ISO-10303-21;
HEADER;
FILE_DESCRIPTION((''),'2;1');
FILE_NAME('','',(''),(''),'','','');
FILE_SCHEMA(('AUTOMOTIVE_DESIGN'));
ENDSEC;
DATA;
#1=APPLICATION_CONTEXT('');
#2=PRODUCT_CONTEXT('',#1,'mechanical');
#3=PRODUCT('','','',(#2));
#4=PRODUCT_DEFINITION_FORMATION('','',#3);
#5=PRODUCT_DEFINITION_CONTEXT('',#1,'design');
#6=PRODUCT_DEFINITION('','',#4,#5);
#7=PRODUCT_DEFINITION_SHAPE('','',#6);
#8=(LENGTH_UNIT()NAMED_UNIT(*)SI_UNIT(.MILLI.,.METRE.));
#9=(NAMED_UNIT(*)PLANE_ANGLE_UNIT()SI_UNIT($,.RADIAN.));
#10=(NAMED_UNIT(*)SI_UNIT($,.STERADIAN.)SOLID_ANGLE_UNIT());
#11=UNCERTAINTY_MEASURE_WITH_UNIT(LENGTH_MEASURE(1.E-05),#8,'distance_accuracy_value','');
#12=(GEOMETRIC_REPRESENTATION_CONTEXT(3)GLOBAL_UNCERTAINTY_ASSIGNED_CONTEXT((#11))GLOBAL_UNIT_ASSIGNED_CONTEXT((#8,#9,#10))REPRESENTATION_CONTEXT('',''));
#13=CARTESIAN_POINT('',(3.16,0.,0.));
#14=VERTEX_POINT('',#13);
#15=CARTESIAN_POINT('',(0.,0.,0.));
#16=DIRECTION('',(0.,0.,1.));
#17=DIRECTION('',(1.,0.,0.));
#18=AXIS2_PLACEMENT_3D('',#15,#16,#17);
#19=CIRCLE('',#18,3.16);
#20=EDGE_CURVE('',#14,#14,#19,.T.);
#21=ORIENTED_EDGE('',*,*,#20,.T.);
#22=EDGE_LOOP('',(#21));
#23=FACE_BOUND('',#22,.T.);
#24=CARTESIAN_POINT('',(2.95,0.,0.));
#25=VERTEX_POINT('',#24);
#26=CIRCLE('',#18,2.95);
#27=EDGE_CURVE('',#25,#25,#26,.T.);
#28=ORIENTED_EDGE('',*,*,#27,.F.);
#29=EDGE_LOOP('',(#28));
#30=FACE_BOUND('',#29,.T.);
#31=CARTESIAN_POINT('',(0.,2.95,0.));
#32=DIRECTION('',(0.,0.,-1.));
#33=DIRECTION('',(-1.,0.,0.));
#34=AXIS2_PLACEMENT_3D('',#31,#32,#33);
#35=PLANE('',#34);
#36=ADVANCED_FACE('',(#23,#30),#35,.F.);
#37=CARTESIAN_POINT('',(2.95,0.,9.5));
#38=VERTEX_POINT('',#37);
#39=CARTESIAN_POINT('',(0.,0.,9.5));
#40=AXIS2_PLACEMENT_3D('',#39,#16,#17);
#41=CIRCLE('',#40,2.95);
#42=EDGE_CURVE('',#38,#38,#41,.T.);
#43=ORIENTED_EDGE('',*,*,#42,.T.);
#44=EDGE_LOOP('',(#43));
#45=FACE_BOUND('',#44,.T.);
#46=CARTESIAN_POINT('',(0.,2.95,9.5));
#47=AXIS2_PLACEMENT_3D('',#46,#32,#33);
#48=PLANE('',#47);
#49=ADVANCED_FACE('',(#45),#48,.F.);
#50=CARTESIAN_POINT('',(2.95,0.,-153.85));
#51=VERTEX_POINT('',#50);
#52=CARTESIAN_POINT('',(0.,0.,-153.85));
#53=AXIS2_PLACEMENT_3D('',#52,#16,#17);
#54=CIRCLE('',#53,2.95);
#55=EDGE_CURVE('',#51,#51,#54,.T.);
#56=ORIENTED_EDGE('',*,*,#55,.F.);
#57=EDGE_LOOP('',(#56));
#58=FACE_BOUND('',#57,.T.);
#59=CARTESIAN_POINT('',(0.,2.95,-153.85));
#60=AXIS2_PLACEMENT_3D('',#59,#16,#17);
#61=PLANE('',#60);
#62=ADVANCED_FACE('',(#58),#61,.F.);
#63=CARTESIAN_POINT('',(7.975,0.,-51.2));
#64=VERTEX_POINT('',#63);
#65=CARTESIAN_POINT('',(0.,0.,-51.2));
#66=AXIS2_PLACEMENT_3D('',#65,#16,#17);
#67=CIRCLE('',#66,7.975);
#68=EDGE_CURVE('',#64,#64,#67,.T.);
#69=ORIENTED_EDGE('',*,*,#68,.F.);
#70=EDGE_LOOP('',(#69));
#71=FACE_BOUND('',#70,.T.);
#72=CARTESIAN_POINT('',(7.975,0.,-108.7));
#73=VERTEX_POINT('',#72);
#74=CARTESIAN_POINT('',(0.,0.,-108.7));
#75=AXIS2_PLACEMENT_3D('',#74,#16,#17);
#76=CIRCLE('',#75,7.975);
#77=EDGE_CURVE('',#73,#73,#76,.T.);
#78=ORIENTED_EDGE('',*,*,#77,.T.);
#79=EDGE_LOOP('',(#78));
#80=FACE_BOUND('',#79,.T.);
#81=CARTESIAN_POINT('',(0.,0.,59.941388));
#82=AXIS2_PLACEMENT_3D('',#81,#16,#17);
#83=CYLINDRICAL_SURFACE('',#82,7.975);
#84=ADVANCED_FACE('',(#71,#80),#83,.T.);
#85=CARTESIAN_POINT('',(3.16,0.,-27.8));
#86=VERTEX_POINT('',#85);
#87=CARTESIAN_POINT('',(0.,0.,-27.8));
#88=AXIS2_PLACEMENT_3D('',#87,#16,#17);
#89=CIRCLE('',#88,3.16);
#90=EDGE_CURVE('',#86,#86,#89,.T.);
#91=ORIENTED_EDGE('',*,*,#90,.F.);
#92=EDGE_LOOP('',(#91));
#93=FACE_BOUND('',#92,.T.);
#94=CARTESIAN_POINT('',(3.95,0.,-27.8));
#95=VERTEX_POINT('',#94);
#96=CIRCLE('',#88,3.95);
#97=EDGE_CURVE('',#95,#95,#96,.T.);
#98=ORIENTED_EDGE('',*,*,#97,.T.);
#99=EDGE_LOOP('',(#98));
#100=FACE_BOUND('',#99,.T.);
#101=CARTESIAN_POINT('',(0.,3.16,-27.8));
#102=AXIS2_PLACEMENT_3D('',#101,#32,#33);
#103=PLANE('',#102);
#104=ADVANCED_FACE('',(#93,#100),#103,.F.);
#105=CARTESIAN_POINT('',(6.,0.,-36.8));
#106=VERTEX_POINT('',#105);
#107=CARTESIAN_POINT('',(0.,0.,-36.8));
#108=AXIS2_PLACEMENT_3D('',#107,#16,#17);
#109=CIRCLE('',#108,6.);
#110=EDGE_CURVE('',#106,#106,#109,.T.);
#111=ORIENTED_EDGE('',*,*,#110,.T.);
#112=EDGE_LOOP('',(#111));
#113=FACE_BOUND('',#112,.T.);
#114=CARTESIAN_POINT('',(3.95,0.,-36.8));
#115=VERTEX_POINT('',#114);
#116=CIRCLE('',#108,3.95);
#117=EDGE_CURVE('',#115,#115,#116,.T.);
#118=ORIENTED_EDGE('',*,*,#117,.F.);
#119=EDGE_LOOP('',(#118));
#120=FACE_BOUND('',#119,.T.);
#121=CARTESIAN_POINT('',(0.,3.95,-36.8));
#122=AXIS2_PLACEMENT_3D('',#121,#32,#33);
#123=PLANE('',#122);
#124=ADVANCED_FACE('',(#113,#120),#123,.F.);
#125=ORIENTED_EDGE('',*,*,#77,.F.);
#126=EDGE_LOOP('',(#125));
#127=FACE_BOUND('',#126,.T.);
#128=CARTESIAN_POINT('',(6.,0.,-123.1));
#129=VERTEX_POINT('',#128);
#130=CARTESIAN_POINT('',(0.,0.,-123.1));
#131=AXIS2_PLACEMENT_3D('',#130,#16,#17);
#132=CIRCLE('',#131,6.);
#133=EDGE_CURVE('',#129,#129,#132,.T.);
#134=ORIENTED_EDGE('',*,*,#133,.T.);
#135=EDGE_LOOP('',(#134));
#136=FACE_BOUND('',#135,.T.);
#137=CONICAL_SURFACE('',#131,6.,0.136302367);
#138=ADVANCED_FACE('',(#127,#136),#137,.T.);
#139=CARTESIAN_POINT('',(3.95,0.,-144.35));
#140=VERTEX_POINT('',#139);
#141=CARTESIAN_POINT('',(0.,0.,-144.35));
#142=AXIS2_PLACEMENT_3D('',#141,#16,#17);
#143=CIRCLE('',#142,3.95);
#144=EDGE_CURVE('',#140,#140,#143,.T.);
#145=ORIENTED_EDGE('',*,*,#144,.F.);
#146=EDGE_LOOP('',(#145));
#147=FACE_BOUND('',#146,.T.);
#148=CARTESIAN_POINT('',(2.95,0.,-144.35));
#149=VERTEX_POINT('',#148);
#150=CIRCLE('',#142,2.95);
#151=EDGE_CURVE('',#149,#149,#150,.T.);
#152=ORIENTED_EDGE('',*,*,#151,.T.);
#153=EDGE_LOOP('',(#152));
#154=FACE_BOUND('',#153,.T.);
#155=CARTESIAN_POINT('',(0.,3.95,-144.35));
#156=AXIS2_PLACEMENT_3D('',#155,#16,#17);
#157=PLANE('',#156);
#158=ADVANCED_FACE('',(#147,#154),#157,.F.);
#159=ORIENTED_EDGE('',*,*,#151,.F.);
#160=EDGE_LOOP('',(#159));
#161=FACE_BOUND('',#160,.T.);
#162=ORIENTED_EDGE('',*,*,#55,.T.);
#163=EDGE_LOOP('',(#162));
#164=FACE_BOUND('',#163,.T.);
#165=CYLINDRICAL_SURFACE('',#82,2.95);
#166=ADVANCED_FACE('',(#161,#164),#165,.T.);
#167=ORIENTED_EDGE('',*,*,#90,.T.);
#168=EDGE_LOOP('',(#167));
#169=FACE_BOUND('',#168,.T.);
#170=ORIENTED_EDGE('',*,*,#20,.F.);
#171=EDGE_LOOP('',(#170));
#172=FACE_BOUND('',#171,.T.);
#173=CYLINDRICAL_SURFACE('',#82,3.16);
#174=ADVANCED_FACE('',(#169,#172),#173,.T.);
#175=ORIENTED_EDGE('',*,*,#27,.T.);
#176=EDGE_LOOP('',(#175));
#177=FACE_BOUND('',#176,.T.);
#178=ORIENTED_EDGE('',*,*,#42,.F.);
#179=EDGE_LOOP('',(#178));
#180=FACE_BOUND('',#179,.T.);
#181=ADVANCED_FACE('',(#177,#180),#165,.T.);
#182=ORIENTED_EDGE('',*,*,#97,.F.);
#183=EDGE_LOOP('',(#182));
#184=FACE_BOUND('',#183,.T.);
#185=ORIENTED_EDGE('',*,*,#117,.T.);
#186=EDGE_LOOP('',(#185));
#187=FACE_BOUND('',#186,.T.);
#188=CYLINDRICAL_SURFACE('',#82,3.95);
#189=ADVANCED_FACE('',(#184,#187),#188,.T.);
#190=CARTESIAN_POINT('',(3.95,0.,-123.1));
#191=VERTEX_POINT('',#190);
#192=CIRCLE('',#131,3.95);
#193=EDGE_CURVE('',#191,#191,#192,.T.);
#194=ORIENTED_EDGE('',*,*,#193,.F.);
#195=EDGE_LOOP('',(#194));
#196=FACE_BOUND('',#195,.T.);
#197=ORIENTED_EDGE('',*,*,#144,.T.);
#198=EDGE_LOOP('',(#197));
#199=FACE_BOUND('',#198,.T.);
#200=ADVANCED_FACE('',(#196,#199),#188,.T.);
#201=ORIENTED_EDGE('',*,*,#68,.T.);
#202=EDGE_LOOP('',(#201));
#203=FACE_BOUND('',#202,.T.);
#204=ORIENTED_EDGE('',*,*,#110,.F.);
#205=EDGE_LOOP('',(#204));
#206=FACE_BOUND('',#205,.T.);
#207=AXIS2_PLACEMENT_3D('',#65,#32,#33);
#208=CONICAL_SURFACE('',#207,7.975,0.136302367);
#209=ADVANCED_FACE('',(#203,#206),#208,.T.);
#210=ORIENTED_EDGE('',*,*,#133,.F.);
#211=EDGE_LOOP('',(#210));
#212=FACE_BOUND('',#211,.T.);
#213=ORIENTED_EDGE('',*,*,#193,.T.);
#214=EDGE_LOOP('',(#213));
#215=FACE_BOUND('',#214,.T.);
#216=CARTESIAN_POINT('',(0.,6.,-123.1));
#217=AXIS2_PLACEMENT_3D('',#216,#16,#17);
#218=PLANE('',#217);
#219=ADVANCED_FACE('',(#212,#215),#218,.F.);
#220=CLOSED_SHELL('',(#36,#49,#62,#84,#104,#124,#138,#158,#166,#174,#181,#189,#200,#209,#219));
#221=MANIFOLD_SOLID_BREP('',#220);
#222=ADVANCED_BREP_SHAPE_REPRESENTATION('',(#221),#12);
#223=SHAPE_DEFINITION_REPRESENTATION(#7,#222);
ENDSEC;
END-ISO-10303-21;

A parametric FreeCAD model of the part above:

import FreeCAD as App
import Part
import Sketcher

V = App.Vector
Q = App.Units.Quantity

doc = App.newDocument("Part")
body = doc.addObject("PartDesign::Body", "Body")

sketch1 = doc.addObject("Sketcher::SketchObject", "Sketch")
body.addObject(sketch1)
sketch1.AttachmentSupport = (doc.YZ_Plane, [""])
sketch1.MapMode = "FlatFace"
sketch1.addGeometry(Part.LineSegment(V(3.95, -27.8, 0), V(3.16, -27.8, 0)), False)
sketch1.addGeometry(Part.LineSegment(V(3.16, -27.8, 0), V(3.16, 0, 0)), False)
sketch1.addGeometry(Part.LineSegment(V(3.16, 0, 0), V(2.95, 0, 0)), False)
sketch1.addGeometry(Part.LineSegment(V(2.95, 0, 0), V(2.95, 9.5, 0)), False)
sketch1.addGeometry(Part.LineSegment(V(2.95, 9.5, 0), V(0, 9.5, 0)), False)
sketch1.addGeometry(Part.LineSegment(V(0, 9.5, 0), V(0, -153.85, 0)), False)
sketch1.addGeometry(Part.LineSegment(V(0, -153.85, 0), V(2.95, -153.85, 0)), False)
sketch1.addGeometry(Part.LineSegment(V(2.95, -153.85, 0), V(2.95, -144.35, 0)), False)
sketch1.addGeometry(Part.LineSegment(V(2.95, -144.35, 0), V(3.95, -144.35, 0)), False)
sketch1.addGeometry(Part.LineSegment(V(3.95, -144.35, 0), V(3.95, -123.1, 0)), False)
sketch1.addGeometry(Part.LineSegment(V(3.95, -123.1, 0), V(6, -123.1, 0)), False)
sketch1.addGeometry(Part.LineSegment(V(6, -123.1, 0), V(7.975, -108.7, 0)), False)
sketch1.addGeometry(Part.LineSegment(V(7.975, -108.7, 0), V(7.975, -51.2, 0)), False)
sketch1.addGeometry(Part.LineSegment(V(7.975, -51.2, 0), V(6, -36.8, 0)), False)
sketch1.addGeometry(Part.LineSegment(V(6, -36.8, 0), V(3.95, -36.8, 0)), False)
sketch1.addGeometry(Part.LineSegment(V(3.95, -36.8, 0), V(3.95, -27.8, 0)), False)
sketch1.addConstraint(Sketcher.Constraint("Coincident", 0, 2, 1, 1))
sketch1.addConstraint(Sketcher.Constraint("Coincident", 1, 2, 2, 1))
sketch1.addConstraint(Sketcher.Constraint("Coincident", 2, 2, 3, 1))
sketch1.addConstraint(Sketcher.Constraint("Coincident", 3, 2, 4, 1))
sketch1.addConstraint(Sketcher.Constraint("Coincident", 4, 2, 5, 1))
sketch1.addConstraint(Sketcher.Constraint("Coincident", 5, 2, 6, 1))
sketch1.addConstraint(Sketcher.Constraint("Coincident", 6, 2, 7, 1))
sketch1.addConstraint(Sketcher.Constraint("Coincident", 7, 2, 8, 1))
sketch1.addConstraint(Sketcher.Constraint("Coincident", 8, 2, 9, 1))
sketch1.addConstraint(Sketcher.Constraint("Coincident", 9, 2, 10, 1))
sketch1.addConstraint(Sketcher.Constraint("Coincident", 10, 2, 11, 1))
sketch1.addConstraint(Sketcher.Constraint("Coincident", 11, 2, 12, 1))
sketch1.addConstraint(Sketcher.Constraint("Coincident", 12, 2, 13, 1))
sketch1.addConstraint(Sketcher.Constraint("Coincident", 13, 2, 14, 1))
sketch1.addConstraint(Sketcher.Constraint("Coincident", 14, 2, 15, 1))
sketch1.addConstraint(Sketcher.Constraint("Coincident", 15, 2, 0, 1))
sketch1.addConstraint(Sketcher.Constraint("Horizontal", 0))
sketch1.addConstraint(Sketcher.Constraint("Vertical", 1))
sketch1.addConstraint(Sketcher.Constraint("Horizontal", 2))
sketch1.addConstraint(Sketcher.Constraint("Vertical", 3))
sketch1.addConstraint(Sketcher.Constraint("Horizontal", 4))
sketch1.addConstraint(Sketcher.Constraint("Vertical", 5))
sketch1.addConstraint(Sketcher.Constraint("Horizontal", 6))
sketch1.addConstraint(Sketcher.Constraint("Vertical", 7))
sketch1.addConstraint(Sketcher.Constraint("Horizontal", 8))
sketch1.addConstraint(Sketcher.Constraint("Vertical", 9))
sketch1.addConstraint(Sketcher.Constraint("Horizontal", 10))
sketch1.addConstraint(Sketcher.Constraint("Vertical", 12))
sketch1.addConstraint(Sketcher.Constraint("Horizontal", 14))
sketch1.addConstraint(Sketcher.Constraint("Vertical", 15))
sketch1.addConstraint(Sketcher.Constraint("PointOnObject", 1, 2, -1))
sketch1.addConstraint(Sketcher.Constraint("PointOnObject", 4, 2, -2))
sketch1.addConstraint(Sketcher.Constraint("Vertical", 3, 2, 6, 2))
sketch1.addConstraint(Sketcher.Constraint("Vertical", 10, 2, 13, 2))
sketch1.addConstraint(Sketcher.Constraint("Vertical", 9, 2, 14, 2))
sketch1.addConstraint(Sketcher.Constraint("Equal", 3, 7))
sketch1.addConstraint(Sketcher.Constraint("Equal", 11, 13))
sketch1.addConstraint(Sketcher.Constraint("DistanceX", 8, 1, 8, 2, Q("1 mm")))
sketch1.addConstraint(Sketcher.Constraint("DistanceY", 15, 1, 15, 2, Q("9 mm")))
sketch1.addConstraint(Sketcher.Constraint("DistanceY", 1, 1, 1, 2, Q("27.8 mm")))
sketch1.addConstraint(Sketcher.Constraint("DistanceY", 3, 1, 3, 2, Q("9.5 mm")))
sketch1.addConstraint(Sketcher.Constraint("DistanceY", 12, 1, 12, 2, Q("57.5 mm")))
sketch1.addConstraint(Sketcher.Constraint("DistanceX", -1, 1, 10, 2, Q("6 mm")))
sketch1.addConstraint(Sketcher.Constraint("DistanceX", 0, 2, 0, 1, Q("0.79 mm")))
sketch1.addConstraint(Sketcher.Constraint("DistanceX", 4, 2, 4, 1, Q("2.95 mm")))
sketch1.addConstraint(Sketcher.Constraint("DistanceY", 5, 2, 5, 1, Q("163.35 mm")))
sketch1.addConstraint(Sketcher.Constraint("DistanceY", 9, 1, 9, 2, Q("21.25 mm")))
sketch1.addConstraint(Sketcher.Constraint("DistanceX", -1, 1, 11, 2, Q("7.975 mm")))
revolution = doc.addObject("PartDesign::Revolution", "Revolution")
body.addObject(revolution)
revolution.Profile = sketch1
revolution.ReferenceAxis = (sketch1, ["V_Axis"])
revolution.Angle = 360

doc.recompute()
